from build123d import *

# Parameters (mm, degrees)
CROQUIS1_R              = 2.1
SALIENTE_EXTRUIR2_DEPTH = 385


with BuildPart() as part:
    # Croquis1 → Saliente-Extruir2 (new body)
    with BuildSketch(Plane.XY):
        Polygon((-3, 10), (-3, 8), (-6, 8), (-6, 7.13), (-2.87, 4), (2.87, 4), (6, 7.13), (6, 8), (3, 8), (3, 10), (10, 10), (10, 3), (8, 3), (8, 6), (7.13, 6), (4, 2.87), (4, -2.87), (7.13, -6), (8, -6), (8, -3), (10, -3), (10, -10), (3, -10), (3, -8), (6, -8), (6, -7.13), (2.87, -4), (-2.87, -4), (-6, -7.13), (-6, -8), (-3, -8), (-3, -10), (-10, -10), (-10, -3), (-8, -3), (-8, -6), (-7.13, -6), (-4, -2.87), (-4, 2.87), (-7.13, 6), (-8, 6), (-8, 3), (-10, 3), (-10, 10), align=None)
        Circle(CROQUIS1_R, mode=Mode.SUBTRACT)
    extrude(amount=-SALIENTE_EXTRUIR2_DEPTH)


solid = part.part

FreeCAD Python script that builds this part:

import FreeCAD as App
import Part
import Sketcher

V = App.Vector
Q = App.Units.Quantity


def add_polygon(sketch, points):
    """Adds a closed chain of lines whose ends are joined by coincident constraints."""
    first, n = sketch.GeometryCount, len(points)
    for a, b in zip(points, points[1:] + points[:1]):
        sketch.addGeometry(Part.LineSegment(App.Vector(*a, 0), App.Vector(*b, 0)), False)
    for i in range(n):
        sketch.addConstraint(Sketcher.Constraint("Coincident", first + i, 2, first + (i + 1) % n, 1))

doc = App.newDocument("Part")
body = doc.addObject("PartDesign::Body", "Body")

# Sketch on XY plane
sketch1 = body.newObject("Sketcher::SketchObject", "Sketch")
sketch1.AttachmentSupport = (doc.getObject("XY_Plane"), [""])
sketch1.MapMode = "FlatFace"
add_polygon(sketch1, [(-3, 8), (-3, 10), (-10, 10), (-10, 3), (-8, 3), (-8, 6), (-7.1, 6), (-4, 2.9), (-4, -2.9), (-7.1, -6), (-8, -6), (-8, -3), (-10, -3), (-10, -10), (-3, -10), (-3, -8), (-6, -8), (-6, -7.1), (-2.9, -4), (2.9, -4), (6, -7.1), (6, -8), (3, -8), (3, -10), (10, -10), (10, -3), (8, -3), (8, -6), (7.1, -6), (4, -2.9), (4, 2.9), (7.1, 6), (8, 6), (8, 3), (10, 3), (10, 10), (3, 10), (3, 8), (6, 8), (6, 7.1), (2.9, 4), (-2.9, 4), (-6, 7.1), (-6, 8)])  # lines 0-43
sketch1.addGeometry(Part.Circle(V(0, 0, 0), V(0, 0, 1), 2.1), False)  # 44
sketch1.addConstraint(Sketcher.Constraint("Vertical", 0))
sketch1.addConstraint(Sketcher.Constraint("Horizontal", 1))
sketch1.addConstraint(Sketcher.Constraint("Vertical", 2))
sketch1.addConstraint(Sketcher.Constraint("Horizontal", 3))
sketch1.addConstraint(Sketcher.Constraint("Vertical", 4))
sketch1.addConstraint(Sketcher.Constraint("Horizontal", 5))
sketch1.addConstraint(Sketcher.Constraint("Vertical", 7))
sketch1.addConstraint(Sketcher.Constraint("Horizontal", 9))
sketch1.addConstraint(Sketcher.Constraint("Vertical", 10))
sketch1.addConstraint(Sketcher.Constraint("Horizontal", 11))
sketch1.addConstraint(Sketcher.Constraint("Vertical", 12))
sketch1.addConstraint(Sketcher.Constraint("Horizontal", 13))
sketch1.addConstraint(Sketcher.Constraint("Vertical", 14))
sketch1.addConstraint(Sketcher.Constraint("Horizontal", 15))
sketch1.addConstraint(Sketcher.Constraint("Vertical", 16))
sketch1.addConstraint(Sketcher.Constraint("Horizontal", 18))
sketch1.addConstraint(Sketcher.Constraint("Vertical", 20))
sketch1.addConstraint(Sketcher.Constraint("Horizontal", 21))
sketch1.addConstraint(Sketcher.Constraint("Vertical", 22))
sketch1.addConstraint(Sketcher.Constraint("Horizontal", 23))
sketch1.addConstraint(Sketcher.Constraint("Vertical", 24))
sketch1.addConstraint(Sketcher.Constraint("Horizontal", 25))
sketch1.addConstraint(Sketcher.Constraint("Vertical", 26))
sketch1.addConstraint(Sketcher.Constraint("Horizontal", 27))
sketch1.addConstraint(Sketcher.Constraint("Vertical", 29))
sketch1.addConstraint(Sketcher.Constraint("Horizontal", 31))
sketch1.addConstraint(Sketcher.Constraint("Vertical", 32))
sketch1.addConstraint(Sketcher.Constraint("Horizontal", 33))
sketch1.addConstraint(Sketcher.Constraint("Vertical", 34))
sketch1.addConstraint(Sketcher.Constraint("Horizontal", 35))
sketch1.addConstraint(Sketcher.Constraint("Vertical", 36))
sketch1.addConstraint(Sketcher.Constraint("Horizontal", 37))
sketch1.addConstraint(Sketcher.Constraint("Vertical", 38))
sketch1.addConstraint(Sketcher.Constraint("Horizontal", 40))
sketch1.addConstraint(Sketcher.Constraint("Vertical", 42))
sketch1.addConstraint(Sketcher.Constraint("Horizontal", 43))
sketch1.addConstraint(Sketcher.Constraint("Coincident", 44, 3, -1, 1))
sketch1.addConstraint(Sketcher.Constraint("Symmetric", 0, 2, 22, 2, -1, 1))
sketch1.addConstraint(Sketcher.Constraint("Symmetric", 2, 2, 24, 2, -1, 1))
sketch1.addConstraint(Sketcher.Constraint("Symmetric", 4, 2, 26, 2, -1, 1))
sketch1.addConstraint(Sketcher.Constraint("Symmetric", 6, 2, 28, 2, -1, 1))
sketch1.addConstraint(Sketcher.Constraint("Symmetric", 8, 2, 30, 2, -1, 1))
sketch1.addConstraint(Sketcher.Constraint("Symmetric", 10, 2, 32, 2, -1, 1))
sketch1.addConstraint(Sketcher.Constraint("Symmetric", 12, 2, 34, 2, -1, 1))
sketch1.addConstraint(Sketcher.Constraint("Symmetric", 14, 2, 36, 2, -1, 1))
sketch1.addConstraint(Sketcher.Constraint("Symmetric", 16, 2, 38, 2, -1, 1))
sketch1.addConstraint(Sketcher.Constraint("Symmetric", 17, 2, 39, 2, -1, 1))
sketch1.addConstraint(Sketcher.Constraint("Symmetric", 19, 2, 41, 2, -1, 1))
sketch1.addConstraint(Sketcher.Constraint("Symmetric", 16, 2, 19, 2, -2))
sketch1.addConstraint(Sketcher.Constraint("Symmetric", 14, 2, 21, 2, -2))
sketch1.addConstraint(Sketcher.Constraint("Symmetric", 12, 2, 23, 2, -2))
sketch1.addConstraint(Sketcher.Constraint("Symmetric", 10, 2, 25, 2, -2))
sketch1.addConstraint(Sketcher.Constraint("Symmetric", 8, 2, 27, 2, -2))
sketch1.addConstraint(Sketcher.Constraint("Perpendicular", 6, 8))
sketch1.addConstraint(Sketcher.Constraint("Parallel", 8, 17))
sketch1.addConstraint(Sketcher.Constraint("Perpendicular", 17, 19))
sketch1.addConstraint(Sketcher.Constraint("Parallel", 19, 28))
sketch1.addConstraint(Sketcher.Constraint("Perpendicular", 28, 30))
sketch1.addConstraint(Sketcher.Constraint("Perpendicular", 39, 41))
sketch1.addConstraint(Sketcher.Constraint("Horizontal", 7, 2, 28, 2))
sketch1.addConstraint(Sketcher.Constraint("Horizontal", 37, 2, 42, 2))
sketch1.addConstraint(Sketcher.Constraint("Equal", 33, 0))
sketch1.addConstraint(Sketcher.Constraint("Equal", 35, 2))
sketch1.addConstraint(Sketcher.Constraint("Equal", 43, 4))
sketch1.addConstraint(Sketcher.Constraint("Equal", 40, 7))
sketch1.addConstraint(Sketcher.Constraint("Equal", 31, 16))
sketch1.addConstraint(Sketcher.Constraint("Equal", 8, 17))
sketch1.addConstraint(Sketcher.Constraint("Diameter", 44, Q("4.2 mm")))
sketch1.addConstraint(Sketcher.Constraint("DistanceX", 1, 2, 1, 1, Q("7 mm")))
sketch1.addConstraint(Sketcher.Constraint("DistanceX", 3, 1, 3, 2, Q("2 mm")))
sketch1.addConstraint(Sketcher.Constraint("DistanceX", 15, 2, 15, 1, Q("3 mm")))
sketch1.addConstraint(Sketcher.Constraint("DistanceX", 0, 2, -1, 1, Q("3 mm")))
sketch1.addConstraint(Sketcher.Constraint("DistanceX", 6, 2, -1, 1, Q("4 mm")))
sketch1.addConstraint(Sketcher.Constraint("DistanceX", 5, 1, 5, 2, Q("0.87 mm")))
pad1 = body.newObject("PartDesign::Pad", "Pad")
pad1.Profile = sketch1
pad1.Length = 385
pad1.Reversed = True

doc.recompute()
